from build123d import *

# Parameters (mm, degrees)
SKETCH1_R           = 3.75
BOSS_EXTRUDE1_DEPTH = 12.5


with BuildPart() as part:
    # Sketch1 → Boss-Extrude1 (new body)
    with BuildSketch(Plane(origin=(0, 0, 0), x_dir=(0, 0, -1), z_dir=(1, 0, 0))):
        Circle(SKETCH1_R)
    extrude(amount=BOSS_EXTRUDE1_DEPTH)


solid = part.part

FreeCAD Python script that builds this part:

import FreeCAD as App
import Part
import Sketcher

doc = App.newDocument("Part")
params = doc.addObject("Spreadsheet::Sheet", "Params")
for row, (alias, value) in enumerate([
    ("sketch1_diameter", "7.5 mm"),
    ("pad1_length", "12.5 mm"),
], start=1):
    params.set(f"A{row}", alias)
    params.set(f"B{row}", "=" + value)
    params.setAlias(f"B{row}", alias)

body = doc.addObject("PartDesign::Body", "Body")

# Sketch on YZ plane
sketch1 = body.newObject("Sketcher::SketchObject", "Sketch")
sketch1.AttachmentSupport = (doc.getObject("YZ_Plane"), [""])
sketch1.MapMode = "FlatFace"
sketch1.addGeometry(Part.Circle(App.Vector(0, 0, 0), App.Vector(0, 0, 1), 3.75), False)
sketch1.addConstraint(Sketcher.Constraint("Coincident", 0, 3, -1, 1))
sketch1.addConstraint(Sketcher.Constraint("Diameter", 0, 7.5))
sketch1.setExpression("Constraints[1]", "Params.sketch1_diameter")
pad1 = body.newObject("PartDesign::Pad", "Pad")
pad1.Profile = sketch1
pad1.setExpression("Length", "Params.pad1_length")

doc.recompute()
